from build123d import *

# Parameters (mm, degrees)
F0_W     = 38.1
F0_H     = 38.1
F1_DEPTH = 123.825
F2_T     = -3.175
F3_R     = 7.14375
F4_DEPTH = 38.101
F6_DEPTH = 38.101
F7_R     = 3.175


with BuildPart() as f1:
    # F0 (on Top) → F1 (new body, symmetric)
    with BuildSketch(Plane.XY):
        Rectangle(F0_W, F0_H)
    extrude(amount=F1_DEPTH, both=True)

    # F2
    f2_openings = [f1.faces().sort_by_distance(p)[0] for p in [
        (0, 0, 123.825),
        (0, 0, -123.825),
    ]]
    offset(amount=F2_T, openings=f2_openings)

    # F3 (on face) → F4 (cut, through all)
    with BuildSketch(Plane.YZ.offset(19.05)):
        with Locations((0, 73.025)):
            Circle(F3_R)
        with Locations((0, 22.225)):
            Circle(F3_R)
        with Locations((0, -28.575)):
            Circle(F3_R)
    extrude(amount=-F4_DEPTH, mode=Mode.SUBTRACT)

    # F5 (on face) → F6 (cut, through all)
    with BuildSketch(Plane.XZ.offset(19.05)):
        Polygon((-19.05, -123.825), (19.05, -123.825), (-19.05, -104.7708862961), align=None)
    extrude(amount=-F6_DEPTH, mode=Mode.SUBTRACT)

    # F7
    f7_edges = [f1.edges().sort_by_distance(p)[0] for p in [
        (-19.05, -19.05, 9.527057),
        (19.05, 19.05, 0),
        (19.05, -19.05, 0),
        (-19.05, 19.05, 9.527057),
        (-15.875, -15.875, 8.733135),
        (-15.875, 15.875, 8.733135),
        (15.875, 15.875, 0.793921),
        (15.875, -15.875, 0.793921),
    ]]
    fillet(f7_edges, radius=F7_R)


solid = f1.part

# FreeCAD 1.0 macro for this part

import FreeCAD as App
import Part
import Sketcher
from FreeCAD import Vector
Q = App.Units.Quantity


def edges_at(feature, points):
    """Names of the edges that pass closest to the given points."""
    edges = feature.Shape.Edges
    near = lambda p: min(range(len(edges)), key=lambda i: edges[i].distToShape(Part.Vertex(*p))[0])
    return sorted({f"Edge{near(p) + 1}" for p in points})


def faces_at(feature, points):
    """Names of the faces that lie closest to the given points."""
    faces = feature.Shape.Faces
    near = lambda p: min(range(len(faces)), key=lambda i: faces[i].distToShape(Part.Vertex(*p))[0])
    return sorted({f"Face{near(p) + 1}" for p in points})

doc = App.newDocument("Part")
params = doc.addObject("Spreadsheet::Sheet", "Params")
for row, (alias, value) in enumerate([
    ("sketch1_width", "1.5 in"),
    ("pad1_length", "9.75 in"),
    ("thickness_wall", "0.125 in"),
    ("sketch2_diameter", "0.5625 in"),
    ("sketch3_width", "1.5 in"),
    ("fillet_radius", "0.125 in"),
], start=1):
    params.set(f"A{row}", alias)
    params.set(f"B{row}", "=" + value)
    params.setAlias(f"B{row}", alias)

body = doc.addObject("PartDesign::Body", "Body")

# Sketch on XY plane
sketch1 = body.newObject("Sketcher::SketchObject", "Sketch")
sketch1.AttachmentSupport = (doc.getObject("XY_Plane"), [""])
sketch1.MapMode = "FlatFace"
sketch1.addGeometry(Part.LineSegment(Vector(-19.05, 19.05, 0), Vector(-19.05, -19.05, 0)), False)
sketch1.addGeometry(Part.LineSegment(Vector(-19.05, -19.05, 0), Vector(19.05, -19.05, 0)), False)
sketch1.addGeometry(Part.LineSegment(Vector(19.05, -19.05, 0), Vector(19.05, 19.05, 0)), False)
sketch1.addGeometry(Part.LineSegment(Vector(19.05, 19.05, 0), Vector(-19.05, 19.05, 0)), False)
sketch1.addConstraint(Sketcher.Constraint("Coincident", 0, 2, 1, 1))
sketch1.addConstraint(Sketcher.Constraint("Coincident", 1, 2, 2, 1))
sketch1.addConstraint(Sketcher.Constraint("Coincident", 2, 2, 3, 1))
sketch1.addConstraint(Sketcher.Constraint("Coincident", 3, 2, 0, 1))
sketch1.addConstraint(Sketcher.Constraint("Vertical", 0))
sketch1.addConstraint(Sketcher.Constraint("Horizontal", 1))
sketch1.addConstraint(Sketcher.Constraint("Vertical", 2))
sketch1.addConstraint(Sketcher.Constraint("Horizontal", 3))
sketch1.addConstraint(Sketcher.Constraint("Symmetric", 0, 2, 2, 2, -1, 1))
sketch1.addConstraint(Sketcher.Constraint("Equal", 3, 0))
sketch1.addConstraint(Sketcher.Constraint("DistanceX", 1, 1, 1, 2, Q("1.5 in")))
sketch1.setExpression("Constraints[10]", "Params.sketch1_width")
pad1 = body.newObject("PartDesign::Pad", "Pad")
pad1.Profile = sketch1
pad1.setExpression("Length", "Params.pad1_length")
pad1.Midplane = True
doc.recompute()

thickness = body.newObject("PartDesign::Thickness", "Thickness")
thickness.Base = (pad1, faces_at(pad1, [(0, 0, 123.825), (0, 0, -123.825)]))
thickness.setExpression("Value", "Params.thickness_wall")
thickness.Reversed = True
thickness.Join = "Arc"

# Sketch on YZ plane
sketch2 = body.newObject("Sketcher::SketchObject", "Sketch001")
sketch2.AttachmentSupport = (doc.getObject("YZ_Plane"), [""])
sketch2.MapMode = "FlatFace"
sketch2.AttachmentOffset = App.Placement(Vector(0, 0, 0.75 * 25.4), App.Rotation())
sketch2.addGeometry(Part.Circle(Vector(0, 73.025, 0), Vector(0, 0, 1), 7.14375), False)
sketch2.addGeometry(Part.Circle(Vector(0, 22.225, 0), Vector(0, 0, 1), 7.14375), False)
sketch2.addGeometry(Part.Circle(Vector(0, -28.575, 0), Vector(0, 0, 1), 7.14375), False)
sketch2.addConstraint(Sketcher.Constraint("Equal", 0, 1))
sketch2.addConstraint(Sketcher.Constraint("Equal", 1, 2))
sketch2.addConstraint(Sketcher.Constraint("PointOnObject", 0, 3, -2))
sketch2.addConstraint(Sketcher.Constraint("PointOnObject", 1, 3, -2))
sketch2.addConstraint(Sketcher.Constraint("PointOnObject", 2, 3, -2))
sketch2.addConstraint(Sketcher.Constraint("Diameter", 0, Q("0.5625 in")))
sketch2.addConstraint(Sketcher.Constraint("DistanceY", 1, 3, 0, 3, Q("2 in")))
sketch2.addConstraint(Sketcher.Constraint("DistanceY", 2, 3, 1, 3, Q("2 in")))
sketch2.addConstraint(Sketcher.Constraint("DistanceY", -1, 1, 0, 3, Q("2.875 in")))
sketch2.setExpression("Constraints[5]", "Params.sketch2_diameter")
pocket1 = body.newObject("PartDesign::Pocket", "Pocket")
pocket1.Profile = sketch2
pocket1.Type = "ThroughAll"

# Sketch on XZ plane
sketch3 = body.newObject("Sketcher::SketchObject", "Sketch002")
sketch3.AttachmentSupport = (doc.getObject("XZ_Plane"), [""])
sketch3.MapMode = "FlatFace"
sketch3.AttachmentOffset = App.Placement(Vector(0, 0, 0.75 * 25.4), App.Rotation())
sketch3.addGeometry(Part.LineSegment(Vector(-19.05, -123.825, 0), Vector(19.05, -123.825, 0)), False)
sketch3.addGeometry(Part.LineSegment(Vector(19.05, -123.825, 0), Vector(-19.05, -104.770886, 0)), False)
sketch3.addGeometry(Part.LineSegment(Vector(-19.05, -104.770886, 0), Vector(-19.05, -123.825, 0)), False)
sketch3.addConstraint(Sketcher.Constraint("Coincident", 0, 2, 1, 1))
sketch3.addConstraint(Sketcher.Constraint("Coincident", 1, 2, 2, 1))
sketch3.addConstraint(Sketcher.Constraint("Coincident", 2, 2, 0, 1))
sketch3.addConstraint(Sketcher.Constraint("Horizontal", 0))
sketch3.addConstraint(Sketcher.Constraint("Vertical", 2))
sketch3.addConstraint(Sketcher.Constraint("DistanceX", 0, 1, 0, 2, Q("1.5 in")))
sketch3.addConstraint(Sketcher.Constraint("DistanceX", -1, 1, 0, 2, Q("0.75 in")))
sketch3.addConstraint(Sketcher.Constraint("Angle", 1, Q("153.43 deg")))
sketch3.addConstraint(Sketcher.Constraint("DistanceY", 0, 2, -1, 1, Q("4.875 in")))
sketch3.setExpression("Constraints[5]", "Params.sketch3_width")
pocket2 = body.newObject("PartDesign::Pocket", "Pocket001")
pocket2.Profile = sketch3
pocket2.Type = "ThroughAll"
doc.recompute()

fillet = body.newObject("PartDesign::Fillet", "Fillet")
fillet.Base = (pocket2, edges_at(pocket2, [
    (-19.05, -19.05, 9.527),
    (19.05, 19.05, 0),
    (19.05, -19.05, 0),
    (-19.05, 19.05, 9.527),
    (-15.875, -15.875, 8.733),
    (-15.875, 15.875, 8.733),
    (15.875, 15.875, 0.794),
    (15.875, -15.875, 0.794),
]))
fillet.setExpression("Radius", "Params.fillet_radius")

doc.recompute()
